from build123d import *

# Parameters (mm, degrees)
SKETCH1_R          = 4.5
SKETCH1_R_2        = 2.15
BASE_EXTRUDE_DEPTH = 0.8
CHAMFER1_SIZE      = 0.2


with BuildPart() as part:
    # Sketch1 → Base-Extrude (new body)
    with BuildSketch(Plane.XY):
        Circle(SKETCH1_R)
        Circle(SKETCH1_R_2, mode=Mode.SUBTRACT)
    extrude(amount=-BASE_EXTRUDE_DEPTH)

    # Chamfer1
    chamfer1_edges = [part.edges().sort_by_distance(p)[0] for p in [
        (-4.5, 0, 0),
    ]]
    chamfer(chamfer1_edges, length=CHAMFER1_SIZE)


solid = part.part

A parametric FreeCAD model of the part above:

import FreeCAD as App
import Part
import Sketcher
Q = App.Units.Quantity


def edges_at(feature, points):
    """Names of the edges that pass closest to the given points."""
    edges = feature.Shape.Edges
    near = lambda p: min(range(len(edges)), key=lambda i: edges[i].distToShape(Part.Vertex(*p))[0])
    return sorted({f"Edge{near(p) + 1}" for p in points})

doc = App.newDocument("Part")
body = doc.addObject("PartDesign::Body", "Body")

sketch1 = body.newObject("Sketcher::SketchObject", "Sketch")
sketch1.AttachmentSupport = (doc.getObject("XY_Plane"), [""])
sketch1.MapMode = "FlatFace"
sketch1.addGeometry(Part.Circle(App.Vector(0, 0, 0), App.Vector(0, 0, 1), 4.5), False)
sketch1.addGeometry(Part.Circle(App.Vector(0, 0, 0), App.Vector(0, 0, 1), 2.15), False)
sketch1.addConstraint(Sketcher.Constraint("Coincident", 0, 3, -1, 1))
sketch1.addConstraint(Sketcher.Constraint("Coincident", 1, 3, -1, 1))
sketch1.addConstraint(Sketcher.Constraint("Diameter", 0, Q("9 mm")))
sketch1.addConstraint(Sketcher.Constraint("Diameter", 1, Q("4.3 mm")))
pad1 = body.newObject("PartDesign::Pad", "Pad")
pad1.Profile = sketch1
pad1.Length = 0.8
pad1.Reversed = True
doc.recompute()

chamfer = body.newObject("PartDesign::Chamfer", "Chamfer")
chamfer.Base = (pad1, edges_at(pad1, [(-4.5, 0, 0)]))
chamfer.Size = 0.2

doc.recompute()
